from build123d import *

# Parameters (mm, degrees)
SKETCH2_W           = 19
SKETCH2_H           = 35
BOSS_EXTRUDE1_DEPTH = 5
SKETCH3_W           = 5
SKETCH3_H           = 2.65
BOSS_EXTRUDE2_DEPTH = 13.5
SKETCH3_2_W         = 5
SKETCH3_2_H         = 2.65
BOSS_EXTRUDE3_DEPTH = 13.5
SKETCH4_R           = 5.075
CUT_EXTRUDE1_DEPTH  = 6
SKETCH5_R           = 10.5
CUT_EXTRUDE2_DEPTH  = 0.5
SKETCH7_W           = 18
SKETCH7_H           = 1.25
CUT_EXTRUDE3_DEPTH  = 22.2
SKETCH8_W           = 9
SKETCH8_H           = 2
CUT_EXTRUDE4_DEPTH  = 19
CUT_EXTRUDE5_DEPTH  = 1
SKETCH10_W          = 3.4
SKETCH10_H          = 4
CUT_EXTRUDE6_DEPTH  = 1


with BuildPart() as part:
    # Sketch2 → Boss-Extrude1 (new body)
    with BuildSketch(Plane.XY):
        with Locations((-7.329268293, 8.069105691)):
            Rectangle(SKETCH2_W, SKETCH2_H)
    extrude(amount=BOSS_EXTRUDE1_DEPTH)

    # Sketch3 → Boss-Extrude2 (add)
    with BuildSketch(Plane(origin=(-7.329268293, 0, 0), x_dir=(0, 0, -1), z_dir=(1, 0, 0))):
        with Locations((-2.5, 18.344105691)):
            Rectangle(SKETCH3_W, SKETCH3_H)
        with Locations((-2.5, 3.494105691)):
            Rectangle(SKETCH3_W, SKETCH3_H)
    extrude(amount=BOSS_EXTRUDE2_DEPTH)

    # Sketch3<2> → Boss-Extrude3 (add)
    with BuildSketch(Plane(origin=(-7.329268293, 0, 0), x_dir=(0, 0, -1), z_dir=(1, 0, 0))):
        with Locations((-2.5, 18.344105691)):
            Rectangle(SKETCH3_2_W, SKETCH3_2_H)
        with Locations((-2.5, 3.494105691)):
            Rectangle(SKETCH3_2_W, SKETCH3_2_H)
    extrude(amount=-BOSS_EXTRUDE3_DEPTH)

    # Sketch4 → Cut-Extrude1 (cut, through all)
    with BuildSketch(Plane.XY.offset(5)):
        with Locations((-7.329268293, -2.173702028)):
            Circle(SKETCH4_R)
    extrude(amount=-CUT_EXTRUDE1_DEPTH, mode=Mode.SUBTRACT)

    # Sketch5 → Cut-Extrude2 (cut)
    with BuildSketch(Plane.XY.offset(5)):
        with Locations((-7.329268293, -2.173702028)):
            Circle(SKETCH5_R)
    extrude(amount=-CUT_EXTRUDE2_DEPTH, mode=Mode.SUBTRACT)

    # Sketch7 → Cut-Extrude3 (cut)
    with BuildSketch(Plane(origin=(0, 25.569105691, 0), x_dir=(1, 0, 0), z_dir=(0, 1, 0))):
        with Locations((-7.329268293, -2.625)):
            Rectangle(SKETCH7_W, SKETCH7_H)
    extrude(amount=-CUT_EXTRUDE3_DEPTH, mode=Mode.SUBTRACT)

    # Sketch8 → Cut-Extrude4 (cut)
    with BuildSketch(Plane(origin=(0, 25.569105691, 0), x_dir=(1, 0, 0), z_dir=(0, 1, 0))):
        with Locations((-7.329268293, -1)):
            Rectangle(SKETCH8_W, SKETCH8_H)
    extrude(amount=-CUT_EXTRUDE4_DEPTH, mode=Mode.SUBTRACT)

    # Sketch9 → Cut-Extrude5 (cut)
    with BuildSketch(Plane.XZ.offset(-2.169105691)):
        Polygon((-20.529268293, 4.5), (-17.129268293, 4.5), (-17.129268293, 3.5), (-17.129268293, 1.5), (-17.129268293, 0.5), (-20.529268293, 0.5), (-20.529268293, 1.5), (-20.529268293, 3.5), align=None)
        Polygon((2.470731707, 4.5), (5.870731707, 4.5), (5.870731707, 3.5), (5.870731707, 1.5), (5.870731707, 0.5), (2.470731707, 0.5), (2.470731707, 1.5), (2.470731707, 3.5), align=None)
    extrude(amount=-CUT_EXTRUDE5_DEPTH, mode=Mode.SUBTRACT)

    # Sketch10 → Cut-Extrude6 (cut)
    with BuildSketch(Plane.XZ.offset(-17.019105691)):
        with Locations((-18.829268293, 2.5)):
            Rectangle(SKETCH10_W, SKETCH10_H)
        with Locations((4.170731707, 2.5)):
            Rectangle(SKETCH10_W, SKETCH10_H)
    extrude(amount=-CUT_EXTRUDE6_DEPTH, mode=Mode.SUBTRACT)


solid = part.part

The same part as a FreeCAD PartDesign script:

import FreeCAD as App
import Part
import Sketcher

V = App.Vector
Q = App.Units.Quantity

doc = App.newDocument("Part")
body = doc.addObject("PartDesign::Body", "Body")

# Sketch on XY plane
sketch1 = doc.addObject("Sketcher::SketchObject", "Sketch")
body.addObject(sketch1)
sketch1.AttachmentSupport = (doc.XY_Plane, [""])
sketch1.MapMode = "FlatFace"
sketch1.addGeometry(Part.LineSegment(V(-17, 26, 0), V(-17, -9, 0)), False)
sketch1.addGeometry(Part.LineSegment(V(-17, -9, 0), V(2, -9, 0)), False)
sketch1.addGeometry(Part.LineSegment(V(2, -9, 0), V(2, 26, 0)), False)
sketch1.addGeometry(Part.LineSegment(V(2, 26, 0), V(-17, 26, 0)), False)
sketch1.addConstraint(Sketcher.Constraint("Coincident", 0, 2, 1, 1))
sketch1.addConstraint(Sketcher.Constraint("Coincident", 1, 2, 2, 1))
sketch1.addConstraint(Sketcher.Constraint("Coincident", 2, 2, 3, 1))
sketch1.addConstraint(Sketcher.Constraint("Coincident", 3, 2, 0, 1))
sketch1.addConstraint(Sketcher.Constraint("Vertical", 0))
sketch1.addConstraint(Sketcher.Constraint("Horizontal", 1))
sketch1.addConstraint(Sketcher.Constraint("Vertical", 2))
sketch1.addConstraint(Sketcher.Constraint("Horizontal", 3))
sketch1.addConstraint(Sketcher.Constraint("DistanceX", 1, 1, 1, 2, Q("19 mm")))
sketch1.addConstraint(Sketcher.Constraint("DistanceY", 0, 2, 0, 1, Q("35 mm")))
sketch1.addConstraint(Sketcher.Constraint("DistanceX", 0, 2, -1, 1, Q("16.829268 mm")))
sketch1.addConstraint(Sketcher.Constraint("DistanceY", 0, 2, -1, 1, Q("9.430894 mm")))
pad1 = doc.addObject("PartDesign::Pad", "Pad")
body.addObject(pad1)
pad1.Profile = sketch1
pad1.Length = 5

# Sketch on YZ plane
sketch2 = doc.addObject("Sketcher::SketchObject", "Sketch001")
body.addObject(sketch2)
sketch2.AttachmentSupport = (doc.YZ_Plane, [""])
sketch2.MapMode = "FlatFace"
sketch2.AttachmentOffset = App.Placement(V(0, 0, -7.329268), App.Rotation())
sketch2.addGeometry(Part.LineSegment(V(19.7, 5, 0), V(17, 5, 0)), False)
sketch2.addGeometry(Part.LineSegment(V(17, 5, 0), V(17, 0, 0)), False)
sketch2.addGeometry(Part.LineSegment(V(17, 0, 0), V(19.7, 0, 0)), False)
sketch2.addGeometry(Part.LineSegment(V(19.7, 0, 0), V(19.7, 5, 0)), False)
sketch2.addGeometry(Part.LineSegment(V(4.8, 5, 0), V(2.2, 5, 0)), False)
sketch2.addGeometry(Part.LineSegment(V(2.2, 5, 0), V(2.2, 0, 0)), False)
sketch2.addGeometry(Part.LineSegment(V(2.2, 0, 0), V(4.8, 0, 0)), False)
sketch2.addGeometry(Part.LineSegment(V(4.8, 0, 0), V(4.8, 5, 0)), False)
sketch2.addConstraint(Sketcher.Constraint("Coincident", 0, 2, 1, 1))
sketch2.addConstraint(Sketcher.Constraint("Coincident", 1, 2, 2, 1))
sketch2.addConstraint(Sketcher.Constraint("Coincident", 2, 2, 3, 1))
sketch2.addConstraint(Sketcher.Constraint("Coincident", 3, 2, 0, 1))
sketch2.addConstraint(Sketcher.Constraint("Coincident", 4, 2, 5, 1))
sketch2.addConstraint(Sketcher.Constraint("Coincident", 5, 2, 6, 1))
sketch2.addConstraint(Sketcher.Constraint("Coincident", 6, 2, 7, 1))
sketch2.addConstraint(Sketcher.Constraint("Coincident", 7, 2, 4, 1))
sketch2.addConstraint(Sketcher.Constraint("Horizontal", 0))
sketch2.addConstraint(Sketcher.Constraint("Vertical", 1))
sketch2.addConstraint(Sketcher.Constraint("Horizontal", 2))
sketch2.addConstraint(Sketcher.Constraint("Vertical", 3))
sketch2.addConstraint(Sketcher.Constraint("Horizontal", 4))
sketch2.addConstraint(Sketcher.Constraint("Vertical", 5))
sketch2.addConstraint(Sketcher.Constraint("Horizontal", 6))
sketch2.addConstraint(Sketcher.Constraint("Vertical", 7))
sketch2.addConstraint(Sketcher.Constraint("PointOnObject", 1, 2, -1))
sketch2.addConstraint(Sketcher.Constraint("PointOnObject", 5, 2, -1))
sketch2.addConstraint(Sketcher.Constraint("Horizontal", 3, 2, 4, 2))
sketch2.addConstraint(Sketcher.Constraint("Equal", 2, 4))
sketch2.addConstraint(Sketcher.Constraint("DistanceY", 1, 2, 1, 1, Q("5 mm")))
sketch2.addConstraint(Sketcher.Constraint("DistanceX", 0, 2, 0, 1, Q("2.65 mm")))
sketch2.addConstraint(Sketcher.Constraint("DistanceX", 4, 2, 3, 2, Q("17.5 mm")))
sketch2.addConstraint(Sketcher.Constraint("DistanceX", -1, 1, 0, 2, Q("17.019106 mm")))
pad2 = doc.addObject("PartDesign::Pad", "Pad001")
body.addObject(pad2)
pad2.Profile = sketch2
pad2.Length = 13.5

# Sketch on YZ plane
sketch3 = doc.addObject("Sketcher::SketchObject", "Sketch002")
body.addObject(sketch3)
sketch3.AttachmentSupport = (doc.YZ_Plane, [""])
sketch3.MapMode = "FlatFace"
sketch3.AttachmentOffset = App.Placement(V(0, 0, -7.329268), App.Rotation())
sketch3.addGeometry(Part.LineSegment(V(19.7, 5, 0), V(17, 5, 0)), False)
sketch3.addGeometry(Part.LineSegment(V(17, 5, 0), V(17, 0, 0)), False)
sketch3.addGeometry(Part.LineSegment(V(17, 0, 0), V(19.7, 0, 0)), False)
sketch3.addGeometry(Part.LineSegment(V(19.7, 0, 0), V(19.7, 5, 0)), False)
sketch3.addGeometry(Part.LineSegment(V(4.8, 5, 0), V(2.2, 5, 0)), False)
sketch3.addGeometry(Part.LineSegment(V(2.2, 5, 0), V(2.2, 0, 0)), False)
sketch3.addGeometry(Part.LineSegment(V(2.2, 0, 0), V(4.8, 0, 0)), False)
sketch3.addGeometry(Part.LineSegment(V(4.8, 0, 0), V(4.8, 5, 0)), False)
sketch3.addConstraint(Sketcher.Constraint("Coincident", 0, 2, 1, 1))
sketch3.addConstraint(Sketcher.Constraint("Coincident", 1, 2, 2, 1))
sketch3.addConstraint(Sketcher.Constraint("Coincident", 2, 2, 3, 1))
sketch3.addConstraint(Sketcher.Constraint("Coincident", 3, 2, 0, 1))
sketch3.addConstraint(Sketcher.Constraint("Coincident", 4, 2, 5, 1))
sketch3.addConstraint(Sketcher.Constraint("Coincident", 5, 2, 6, 1))
sketch3.addConstraint(Sketcher.Constraint("Coincident", 6, 2, 7, 1))
sketch3.addConstraint(Sketcher.Constraint("Coincident", 7, 2, 4, 1))
sketch3.addConstraint(Sketcher.Constraint("Horizontal", 0))
sketch3.addConstraint(Sketcher.Constraint("Vertical", 1))
sketch3.addConstraint(Sketcher.Constraint("Horizontal", 2))
sketch3.addConstraint(Sketcher.Constraint("Vertical", 3))
sketch3.addConstraint(Sketcher.Constraint("Horizontal", 4))
sketch3.addConstraint(Sketcher.Constraint("Vertical", 5))
sketch3.addConstraint(Sketcher.Constraint("Horizontal", 6))
sketch3.addConstraint(Sketcher.Constraint("Vertical", 7))
sketch3.addConstraint(Sketcher.Constraint("PointOnObject", 1, 2, -1))
sketch3.addConstraint(Sketcher.Constraint("PointOnObject", 5, 2, -1))
sketch3.addConstraint(Sketcher.Constraint("Horizontal", 3, 2, 4, 2))
sketch3.addConstraint(Sketcher.Constraint("Equal", 2, 4))
sketch3.addConstraint(Sketcher.Constraint("DistanceY", 1, 2, 1, 1, Q("5 mm")))
sketch3.addConstraint(Sketcher.Constraint("DistanceX", 0, 2, 0, 1, Q("2.65 mm")))
sketch3.addConstraint(Sketcher.Constraint("DistanceX", 4, 2, 3, 2, Q("17.5 mm")))
sketch3.addConstraint(Sketcher.Constraint("DistanceX", -1, 1, 0, 2, Q("17.019106 mm")))
pad3 = doc.addObject("PartDesign::Pad", "Pad002")
body.addObject(pad3)
pad3.Profile = sketch3
pad3.Length = 13.5
pad3.Reversed = True

# Sketch on XY plane
sketch4 = doc.addObject("Sketcher::SketchObject", "Sketch003")
body.addObject(sketch4)
sketch4.AttachmentSupport = (doc.XY_Plane, [""])
sketch4.MapMode = "FlatFace"
sketch4.AttachmentOffset = App.Placement(V(0, 0, 5), App.Rotation())
sketch4.addGeometry(Part.Circle(V(-7, -2, 0), V(0, 0, 1), 5), False)
sketch4.addConstraint(Sketcher.Constraint("Diameter", 0, Q("10.15 mm")))
sketch4.addConstraint(Sketcher.Constraint("DistanceX", 0, 3, -1, 1, Q("7.329268 mm")))
sketch4.addConstraint(Sketcher.Constraint("DistanceY", 0, 3, -1, 1, Q("2.173702 mm")))
pocket1 = doc.addObject("PartDesign::Pocket", "Pocket")
body.addObject(pocket1)
pocket1.Profile = sketch4
pocket1.Type = "ThroughAll"

# Sketch on XY plane
sketch5 = doc.addObject("Sketcher::SketchObject", "Sketch004")
body.addObject(sketch5)
sketch5.AttachmentSupport = (doc.XY_Plane, [""])
sketch5.MapMode = "FlatFace"
sketch5.AttachmentOffset = App.Placement(V(0, 0, 5), App.Rotation())
sketch5.addGeometry(Part.Circle(V(-7, -2, 0), V(0, 0, 1), 10), False)
sketch5.addConstraint(Sketcher.Constraint("Diameter", 0, Q("21 mm")))
sketch5.addConstraint(Sketcher.Constraint("DistanceX", 0, 3, -1, 1, Q("7.329268 mm")))
sketch5.addConstraint(Sketcher.Constraint("DistanceY", 0, 3, -1, 1, Q("2.173702 mm")))
pocket2 = doc.addObject("PartDesign::Pocket", "Pocket001")
body.addObject(pocket2)
pocket2.Profile = sketch5
pocket2.Length = 0.5

# Sketch on XZ plane
sketch6 = doc.addObject("Sketcher::SketchObject", "Sketch005")
body.addObject(sketch6)
sketch6.AttachmentSupport = (doc.XZ_Plane, [""])
sketch6.MapMode = "FlatFace"
sketch6.AttachmentOffset = App.Placement(V(0, 0, -25.569106), App.Rotation())
sketch6.addGeometry(Part.LineSegment(V(-16.3, 2, 0), V(-16.3, 3.2, 0)), False)
sketch6.addGeometry(Part.LineSegment(V(-16.3, 3.2, 0), V(1.7, 3.2, 0)), False)
sketch6.addGeometry(Part.LineSegment(V(1.7, 3.2, 0), V(1.7, 2, 0)), False)
sketch6.addGeometry(Part.LineSegment(V(1.7, 2, 0), V(-16.3, 2, 0)), False)
sketch6.addConstraint(Sketcher.Constraint("Coincident", 0, 2, 1, 1))
sketch6.addConstraint(Sketcher.Constraint("Coincident", 1, 2, 2, 1))
sketch6.addConstraint(Sketcher.Constraint("Coincident", 2, 2, 3, 1))
sketch6.addConstraint(Sketcher.Constraint("Coincident", 3, 2, 0, 1))
sketch6.addConstraint(Sketcher.Constraint("Vertical", 0))
sketch6.addConstraint(Sketcher.Constraint("Horizontal", 1))
sketch6.addConstraint(Sketcher.Constraint("Vertical", 2))
sketch6.addConstraint(Sketcher.Constraint("Horizontal", 3))
sketch6.addConstraint(Sketcher.Constraint("DistanceX", 1, 1, 1, 2, Q("18 mm")))
sketch6.addConstraint(Sketcher.Constraint("DistanceY", -1, 1, 2, 2, Q("2 mm")))
sketch6.addConstraint(Sketcher.Constraint("DistanceY", 0, 1, 0, 2, Q("1.25 mm")))
sketch6.addConstraint(Sketcher.Constraint("DistanceX", 0, 2, -1, 1, Q("16.329268 mm")))
pocket3 = doc.addObject("PartDesign::Pocket", "Pocket002")
body.addObject(pocket3)
pocket3.Profile = sketch6
pocket3.Length = 22.2
pocket3.Reversed = True

# Sketch on XZ plane
sketch7 = doc.addObject("Sketcher::SketchObject", "Sketch006")
body.addObject(sketch7)
sketch7.AttachmentSupport = (doc.XZ_Plane, [""])
sketch7.MapMode = "FlatFace"
sketch7.AttachmentOffset = App.Placement(V(0, 0, -25.569106), App.Rotation())
sketch7.addGeometry(Part.LineSegment(V(-11.8, 0, 0), V(-11.8, 2, 0)), False)
sketch7.addGeometry(Part.LineSegment(V(-11.8, 2, 0), V(-2.8, 2, 0)), False)
sketch7.addGeometry(Part.LineSegment(V(-2.8, 2, 0), V(-2.8, 0, 0)), False)
sketch7.addGeometry(Part.LineSegment(V(-2.8, 0, 0), V(-11.8, 0, 0)), False)
sketch7.addConstraint(Sketcher.Constraint("Coincident", 0, 2, 1, 1))
sketch7.addConstraint(Sketcher.Constraint("Coincident", 1, 2, 2, 1))
sketch7.addConstraint(Sketcher.Constraint("Coincident", 2, 2, 3, 1))
sketch7.addConstraint(Sketcher.Constraint("Coincident", 3, 2, 0, 1))
sketch7.addConstraint(Sketcher.Constraint("Vertical", 0))
sketch7.addConstraint(Sketcher.Constraint("Horizontal", 1))
sketch7.addConstraint(Sketcher.Constraint("Vertical", 2))
sketch7.addConstraint(Sketcher.Constraint("Horizontal", 3))
sketch7.addConstraint(Sketcher.Constraint("PointOnObject", 2, 2, -1))
sketch7.addConstraint(Sketcher.Constraint("DistanceX", 1, 1, 1, 2, Q("9 mm")))
sketch7.addConstraint(Sketcher.Constraint("DistanceY", 0, 1, 0, 2, Q("2 mm")))
sketch7.addConstraint(Sketcher.Constraint("DistanceX", 0, 2, -1, 1, Q("11.829268 mm")))
pocket4 = doc.addObject("PartDesign::Pocket", "Pocket003")
body.addObject(pocket4)
pocket4.Profile = sketch7
pocket4.Length = 19
pocket4.Reversed = True

# Sketch on XZ plane
sketch8 = doc.addObject("Sketcher::SketchObject", "Sketch007")
body.addObject(sketch8)
sketch8.AttachmentSupport = (doc.XZ_Plane, [""])
sketch8.MapMode = "FlatFace"
sketch8.AttachmentOffset = App.Placement(V(0, 0, -2.169106), App.Rotation())
sketch8.addGeometry(Part.LineSegment(V(-17.1, 4.5, 0), V(-20.5, 4.5, 0)), False)
sketch8.addGeometry(Part.LineSegment(V(-20.5, 4.5, 0), V(-20.5, 0.5, 0)), False)
sketch8.addGeometry(Part.LineSegment(V(-20.5, 0.5, 0), V(-17.1, 0.5, 0)), False)
sketch8.addGeometry(Part.LineSegment(V(-17.1, 0.5, 0), V(-17.1, 4.5, 0)), False)
sketch8.addGeometry(Part.LineSegment(V(5.9, 4.5, 0), V(2.5, 4.5, 0)), False)
sketch8.addGeometry(Part.LineSegment(V(2.5, 4.5, 0), V(2.5, 0.5, 0)), False)
sketch8.addGeometry(Part.LineSegment(V(2.5, 0.5, 0), V(5.9, 0.5, 0)), False)
sketch8.addGeometry(Part.LineSegment(V(5.9, 0.5, 0), V(5.9, 4.5, 0)), False)
sketch8.addConstraint(Sketcher.Constraint("Coincident", 0, 2, 1, 1))
sketch8.addConstraint(Sketcher.Constraint("Coincident", 1, 2, 2, 1))
sketch8.addConstraint(Sketcher.Constraint("Coincident", 2, 2, 3, 1))
sketch8.addConstraint(Sketcher.Constraint("Coincident", 3, 2, 0, 1))
sketch8.addConstraint(Sketcher.Constraint("Coincident", 4, 2, 5, 1))
sketch8.addConstraint(Sketcher.Constraint("Coincident", 5, 2, 6, 1))
sketch8.addConstraint(Sketcher.Constraint("Coincident", 6, 2, 7, 1))
sketch8.addConstraint(Sketcher.Constraint("Coincident", 7, 2, 4, 1))
sketch8.addConstraint(Sketcher.Constraint("Horizontal", 0))
sketch8.addConstraint(Sketcher.Constraint("Vertical", 1))
sketch8.addConstraint(Sketcher.Constraint("Horizontal", 2))
sketch8.addConstraint(Sketcher.Constraint("Vertical", 3))
sketch8.addConstraint(Sketcher.Constraint("Horizontal", 4))
sketch8.addConstraint(Sketcher.Constraint("Vertical", 5))
sketch8.addConstraint(Sketcher.Constraint("Horizontal", 6))
sketch8.addConstraint(Sketcher.Constraint("Vertical", 7))
sketch8.addConstraint(Sketcher.Constraint("Horizontal", 3, 2, 4, 2))
sketch8.addConstraint(Sketcher.Constraint("Horizontal", 2, 2, 5, 2))
sketch8.addConstraint(Sketcher.Constraint("Equal", 2, 4))
sketch8.addConstraint(Sketcher.Constraint("DistanceY", 1, 2, 1, 1, Q("4 mm")))
sketch8.addConstraint(Sketcher.Constraint("DistanceX", 0, 2, 0, 1, Q("3.4 mm")))
sketch8.addConstraint(Sketcher.Constraint("DistanceX", 0, 2, 4, 2, Q("23 mm")))
sketch8.addConstraint(Sketcher.Constraint("DistanceY", -1, 1, 0, 2, Q("4.5 mm")))
sketch8.addConstraint(Sketcher.Constraint("DistanceX", 0, 2, -1, 1, Q("20.529268 mm")))
pocket5 = doc.addObject("PartDesign::Pocket", "Pocket004")
body.addObject(pocket5)
pocket5.Profile = sketch8
pocket5.Length = 1

# Sketch on XZ plane
sketch9 = doc.addObject("Sketcher::SketchObject", "Sketch008")
body.addObject(sketch9)
sketch9.AttachmentSupport = (doc.XZ_Plane, [""])
sketch9.MapMode = "FlatFace"
sketch9.AttachmentOffset = App.Placement(V(0, 0, -17.019106), App.Rotation())
sketch9.addGeometry(Part.LineSegment(V(-20.5, 4.5, 0), V(-20.5, 0.5, 0)), False)
sketch9.addGeometry(Part.LineSegment(V(-20.5, 0.5, 0), V(-17.1, 0.5, 0)), False)
sketch9.addGeometry(Part.LineSegment(V(-17.1, 0.5, 0), V(-17.1, 4.5, 0)), False)
sketch9.addGeometry(Part.LineSegment(V(-17.1, 4.5, 0), V(-20.5, 4.5, 0)), False)
sketch9.addGeometry(Part.LineSegment(V(2.5, 4.5, 0), V(2.5, 0.5, 0)), False)
sketch9.addGeometry(Part.LineSegment(V(2.5, 0.5, 0), V(5.9, 0.5, 0)), False)
sketch9.addGeometry(Part.LineSegment(V(5.9, 0.5, 0), V(5.9, 4.5, 0)), False)
sketch9.addGeometry(Part.LineSegment(V(5.9, 4.5, 0), V(2.5, 4.5, 0)), False)
sketch9.addConstraint(Sketcher.Constraint("Coincident", 0, 2, 1, 1))
sketch9.addConstraint(Sketcher.Constraint("Coincident", 1, 2, 2, 1))
sketch9.addConstraint(Sketcher.Constraint("Coincident", 2, 2, 3, 1))
sketch9.addConstraint(Sketcher.Constraint("Coincident", 3, 2, 0, 1))
sketch9.addConstraint(Sketcher.Constraint("Coincident", 4, 2, 5, 1))
sketch9.addConstraint(Sketcher.Constraint("Coincident", 5, 2, 6, 1))
sketch9.addConstraint(Sketcher.Constraint("Coincident", 6, 2, 7, 1))
sketch9.addConstraint(Sketcher.Constraint("Coincident", 7, 2, 4, 1))
sketch9.addConstraint(Sketcher.Constraint("Vertical", 0))
sketch9.addConstraint(Sketcher.Constraint("Horizontal", 1))
sketch9.addConstraint(Sketcher.Constraint("Vertical", 2))
sketch9.addConstraint(Sketcher.Constraint("Horizontal", 3))
sketch9.addConstraint(Sketcher.Constraint("Vertical", 4))
sketch9.addConstraint(Sketcher.Constraint("Horizontal", 5))
sketch9.addConstraint(Sketcher.Constraint("Vertical", 6))
sketch9.addConstraint(Sketcher.Constraint("Horizontal", 7))
sketch9.addConstraint(Sketcher.Constraint("Horizontal", 1, 2, 4, 2))
sketch9.addConstraint(Sketcher.Constraint("Horizontal", 3, 2, 6, 2))
sketch9.addConstraint(Sketcher.Constraint("Equal", 3, 5))
sketch9.addConstraint(Sketcher.Constraint("DistanceY", 0, 2, 0, 1, Q("4 mm")))
sketch9.addConstraint(Sketcher.Constraint("DistanceX", 1, 1, 1, 2, Q("3.4 mm")))
sketch9.addConstraint(Sketcher.Constraint("DistanceX", 0, 2, 4, 2, Q("23 mm")))
sketch9.addConstraint(Sketcher.Constraint("DistanceY", -1, 1, 0, 2, Q("0.5 mm")))
sketch9.addConstraint(Sketcher.Constraint("DistanceX", 0, 2, -1, 1, Q("20.529268 mm")))
pocket6 = doc.addObject("PartDesign::Pocket", "Pocket005")
body.addObject(pocket6)
pocket6.Profile = sketch9
pocket6.Length = 1

doc.recompute()
